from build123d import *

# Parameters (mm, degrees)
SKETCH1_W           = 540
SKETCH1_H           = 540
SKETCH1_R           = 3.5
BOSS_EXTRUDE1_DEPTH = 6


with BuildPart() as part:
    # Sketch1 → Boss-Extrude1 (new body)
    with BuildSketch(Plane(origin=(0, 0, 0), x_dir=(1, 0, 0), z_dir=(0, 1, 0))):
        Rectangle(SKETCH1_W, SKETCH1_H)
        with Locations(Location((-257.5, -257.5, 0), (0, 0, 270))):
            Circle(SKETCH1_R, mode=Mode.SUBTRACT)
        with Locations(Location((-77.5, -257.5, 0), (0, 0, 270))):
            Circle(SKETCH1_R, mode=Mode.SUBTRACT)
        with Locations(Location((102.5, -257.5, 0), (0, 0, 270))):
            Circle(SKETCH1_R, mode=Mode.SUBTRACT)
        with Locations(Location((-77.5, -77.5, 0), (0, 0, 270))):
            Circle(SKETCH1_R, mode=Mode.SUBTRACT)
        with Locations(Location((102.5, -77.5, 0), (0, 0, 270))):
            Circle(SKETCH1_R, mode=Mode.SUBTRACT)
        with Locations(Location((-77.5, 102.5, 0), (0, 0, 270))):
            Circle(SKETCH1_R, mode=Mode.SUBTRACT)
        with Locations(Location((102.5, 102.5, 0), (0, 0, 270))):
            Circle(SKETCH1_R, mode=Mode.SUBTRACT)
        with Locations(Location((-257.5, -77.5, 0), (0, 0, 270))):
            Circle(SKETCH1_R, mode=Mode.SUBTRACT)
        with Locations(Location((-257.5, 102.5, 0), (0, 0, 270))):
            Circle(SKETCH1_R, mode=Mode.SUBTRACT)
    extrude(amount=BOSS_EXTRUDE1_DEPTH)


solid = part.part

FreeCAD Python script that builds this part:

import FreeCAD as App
import Part
import Sketcher
Q = App.Units.Quantity

doc = App.newDocument("Part")
body = doc.addObject("PartDesign::Body", "Body")

sketch1 = body.newObject("Sketcher::SketchObject", "Sketch")
sketch1.AttachmentSupport = (doc.getObject("XZ_Plane"), [""])
sketch1.MapMode = "FlatFace"
sketch1.addGeometry([
    Part.LineSegment(App.Vector(-270, -270, 0), App.Vector(-270, 270, 0)),
    Part.LineSegment(App.Vector(-270, 270, 0), App.Vector(270, 270, 0)),
    Part.LineSegment(App.Vector(270, 270, 0), App.Vector(270, -270, 0)),
    Part.LineSegment(App.Vector(270, -270, 0), App.Vector(-270, -270, 0)),
    Part.Circle(App.Vector(-257.5, 257.5, 0), App.Vector(0, 0, 1), 3.5),
    Part.Circle(App.Vector(-77.5, 257.5, 0), App.Vector(0, 0, 1), 3.5),
    Part.Circle(App.Vector(102.5, 257.5, 0), App.Vector(0, 0, 1), 3.5),
    Part.Circle(App.Vector(-257.5, 77.5, 0), App.Vector(0, 0, 1), 3.5),
    Part.Circle(App.Vector(-257.5, -102.5, 0), App.Vector(0, 0, 1), 3.5),
    Part.Circle(App.Vector(-77.5, 77.5, 0), App.Vector(0, 0, 1), 3.5),
    Part.Circle(App.Vector(102.5, 77.5, 0), App.Vector(0, 0, 1), 3.5),
    Part.Circle(App.Vector(-77.5, -102.5, 0), App.Vector(0, 0, 1), 3.5),
    Part.Circle(App.Vector(102.5, -102.5, 0), App.Vector(0, 0, 1), 3.5),
], False)
sketch1.addConstraint([
    Sketcher.Constraint("Coincident", 0, 2, 1, 1),
    Sketcher.Constraint("Coincident", 1, 2, 2, 1),
    Sketcher.Constraint("Coincident", 2, 2, 3, 1),
    Sketcher.Constraint("Coincident", 3, 2, 0, 1),
    Sketcher.Constraint("Vertical", 0),
    Sketcher.Constraint("Horizontal", 1),
    Sketcher.Constraint("Vertical", 2),
    Sketcher.Constraint("Horizontal", 3),
    Sketcher.Constraint("Equal", 4, 5),
    Sketcher.Constraint("Equal", 5, 6),
    Sketcher.Constraint("Equal", 6, 7),
    Sketcher.Constraint("Equal", 7, 8),
    Sketcher.Constraint("Equal", 8, 9),
    Sketcher.Constraint("Equal", 9, 10),
    Sketcher.Constraint("Equal", 10, 11),
    Sketcher.Constraint("Equal", 11, 12),
    Sketcher.Constraint("Symmetric", 0, 2, 2, 2, -1, 1),
    Sketcher.Constraint("Horizontal", 4, 3, 5, 3),
    Sketcher.Constraint("Horizontal", 5, 3, 6, 3),
    Sketcher.Constraint("Horizontal", 7, 3, 9, 3),
    Sketcher.Constraint("Horizontal", 9, 3, 10, 3),
    Sketcher.Constraint("Horizontal", 8, 3, 11, 3),
    Sketcher.Constraint("Horizontal", 11, 3, 12, 3),
    Sketcher.Constraint("Vertical", 4, 3, 7, 3),
    Sketcher.Constraint("Vertical", 7, 3, 8, 3),
    Sketcher.Constraint("Vertical", 5, 3, 9, 3),
    Sketcher.Constraint("Vertical", 6, 3, 10, 3),
    Sketcher.Constraint("Vertical", 9, 3, 11, 3),
    Sketcher.Constraint("Vertical", 10, 3, 12, 3),
    Sketcher.Constraint("Equal", 3, 0),
    Sketcher.Constraint("Diameter", 4, Q("7 mm")),
    Sketcher.Constraint("DistanceX", 1, 1, 1, 2, Q("540 mm")),
    Sketcher.Constraint("DistanceX", 4, 3, 5, 3, Q("180 mm")),
    Sketcher.Constraint("DistanceX", 5, 3, 6, 3, Q("180 mm")),
    Sketcher.Constraint("DistanceY", 7, 3, 4, 3, Q("180 mm")),
    Sketcher.Constraint("DistanceY", 8, 3, 7, 3, Q("180 mm")),
    Sketcher.Constraint("DistanceX", 4, 3, -1, 1, Q("257.5 mm")),
    Sketcher.Constraint("DistanceY", -1, 1, 4, 3, Q("257.5 mm")),
])
pad1 = body.newObject("PartDesign::Pad", "Pad")
pad1.Profile = sketch1
pad1.Length = 6
pad1.Reversed = True

doc.recompute()
